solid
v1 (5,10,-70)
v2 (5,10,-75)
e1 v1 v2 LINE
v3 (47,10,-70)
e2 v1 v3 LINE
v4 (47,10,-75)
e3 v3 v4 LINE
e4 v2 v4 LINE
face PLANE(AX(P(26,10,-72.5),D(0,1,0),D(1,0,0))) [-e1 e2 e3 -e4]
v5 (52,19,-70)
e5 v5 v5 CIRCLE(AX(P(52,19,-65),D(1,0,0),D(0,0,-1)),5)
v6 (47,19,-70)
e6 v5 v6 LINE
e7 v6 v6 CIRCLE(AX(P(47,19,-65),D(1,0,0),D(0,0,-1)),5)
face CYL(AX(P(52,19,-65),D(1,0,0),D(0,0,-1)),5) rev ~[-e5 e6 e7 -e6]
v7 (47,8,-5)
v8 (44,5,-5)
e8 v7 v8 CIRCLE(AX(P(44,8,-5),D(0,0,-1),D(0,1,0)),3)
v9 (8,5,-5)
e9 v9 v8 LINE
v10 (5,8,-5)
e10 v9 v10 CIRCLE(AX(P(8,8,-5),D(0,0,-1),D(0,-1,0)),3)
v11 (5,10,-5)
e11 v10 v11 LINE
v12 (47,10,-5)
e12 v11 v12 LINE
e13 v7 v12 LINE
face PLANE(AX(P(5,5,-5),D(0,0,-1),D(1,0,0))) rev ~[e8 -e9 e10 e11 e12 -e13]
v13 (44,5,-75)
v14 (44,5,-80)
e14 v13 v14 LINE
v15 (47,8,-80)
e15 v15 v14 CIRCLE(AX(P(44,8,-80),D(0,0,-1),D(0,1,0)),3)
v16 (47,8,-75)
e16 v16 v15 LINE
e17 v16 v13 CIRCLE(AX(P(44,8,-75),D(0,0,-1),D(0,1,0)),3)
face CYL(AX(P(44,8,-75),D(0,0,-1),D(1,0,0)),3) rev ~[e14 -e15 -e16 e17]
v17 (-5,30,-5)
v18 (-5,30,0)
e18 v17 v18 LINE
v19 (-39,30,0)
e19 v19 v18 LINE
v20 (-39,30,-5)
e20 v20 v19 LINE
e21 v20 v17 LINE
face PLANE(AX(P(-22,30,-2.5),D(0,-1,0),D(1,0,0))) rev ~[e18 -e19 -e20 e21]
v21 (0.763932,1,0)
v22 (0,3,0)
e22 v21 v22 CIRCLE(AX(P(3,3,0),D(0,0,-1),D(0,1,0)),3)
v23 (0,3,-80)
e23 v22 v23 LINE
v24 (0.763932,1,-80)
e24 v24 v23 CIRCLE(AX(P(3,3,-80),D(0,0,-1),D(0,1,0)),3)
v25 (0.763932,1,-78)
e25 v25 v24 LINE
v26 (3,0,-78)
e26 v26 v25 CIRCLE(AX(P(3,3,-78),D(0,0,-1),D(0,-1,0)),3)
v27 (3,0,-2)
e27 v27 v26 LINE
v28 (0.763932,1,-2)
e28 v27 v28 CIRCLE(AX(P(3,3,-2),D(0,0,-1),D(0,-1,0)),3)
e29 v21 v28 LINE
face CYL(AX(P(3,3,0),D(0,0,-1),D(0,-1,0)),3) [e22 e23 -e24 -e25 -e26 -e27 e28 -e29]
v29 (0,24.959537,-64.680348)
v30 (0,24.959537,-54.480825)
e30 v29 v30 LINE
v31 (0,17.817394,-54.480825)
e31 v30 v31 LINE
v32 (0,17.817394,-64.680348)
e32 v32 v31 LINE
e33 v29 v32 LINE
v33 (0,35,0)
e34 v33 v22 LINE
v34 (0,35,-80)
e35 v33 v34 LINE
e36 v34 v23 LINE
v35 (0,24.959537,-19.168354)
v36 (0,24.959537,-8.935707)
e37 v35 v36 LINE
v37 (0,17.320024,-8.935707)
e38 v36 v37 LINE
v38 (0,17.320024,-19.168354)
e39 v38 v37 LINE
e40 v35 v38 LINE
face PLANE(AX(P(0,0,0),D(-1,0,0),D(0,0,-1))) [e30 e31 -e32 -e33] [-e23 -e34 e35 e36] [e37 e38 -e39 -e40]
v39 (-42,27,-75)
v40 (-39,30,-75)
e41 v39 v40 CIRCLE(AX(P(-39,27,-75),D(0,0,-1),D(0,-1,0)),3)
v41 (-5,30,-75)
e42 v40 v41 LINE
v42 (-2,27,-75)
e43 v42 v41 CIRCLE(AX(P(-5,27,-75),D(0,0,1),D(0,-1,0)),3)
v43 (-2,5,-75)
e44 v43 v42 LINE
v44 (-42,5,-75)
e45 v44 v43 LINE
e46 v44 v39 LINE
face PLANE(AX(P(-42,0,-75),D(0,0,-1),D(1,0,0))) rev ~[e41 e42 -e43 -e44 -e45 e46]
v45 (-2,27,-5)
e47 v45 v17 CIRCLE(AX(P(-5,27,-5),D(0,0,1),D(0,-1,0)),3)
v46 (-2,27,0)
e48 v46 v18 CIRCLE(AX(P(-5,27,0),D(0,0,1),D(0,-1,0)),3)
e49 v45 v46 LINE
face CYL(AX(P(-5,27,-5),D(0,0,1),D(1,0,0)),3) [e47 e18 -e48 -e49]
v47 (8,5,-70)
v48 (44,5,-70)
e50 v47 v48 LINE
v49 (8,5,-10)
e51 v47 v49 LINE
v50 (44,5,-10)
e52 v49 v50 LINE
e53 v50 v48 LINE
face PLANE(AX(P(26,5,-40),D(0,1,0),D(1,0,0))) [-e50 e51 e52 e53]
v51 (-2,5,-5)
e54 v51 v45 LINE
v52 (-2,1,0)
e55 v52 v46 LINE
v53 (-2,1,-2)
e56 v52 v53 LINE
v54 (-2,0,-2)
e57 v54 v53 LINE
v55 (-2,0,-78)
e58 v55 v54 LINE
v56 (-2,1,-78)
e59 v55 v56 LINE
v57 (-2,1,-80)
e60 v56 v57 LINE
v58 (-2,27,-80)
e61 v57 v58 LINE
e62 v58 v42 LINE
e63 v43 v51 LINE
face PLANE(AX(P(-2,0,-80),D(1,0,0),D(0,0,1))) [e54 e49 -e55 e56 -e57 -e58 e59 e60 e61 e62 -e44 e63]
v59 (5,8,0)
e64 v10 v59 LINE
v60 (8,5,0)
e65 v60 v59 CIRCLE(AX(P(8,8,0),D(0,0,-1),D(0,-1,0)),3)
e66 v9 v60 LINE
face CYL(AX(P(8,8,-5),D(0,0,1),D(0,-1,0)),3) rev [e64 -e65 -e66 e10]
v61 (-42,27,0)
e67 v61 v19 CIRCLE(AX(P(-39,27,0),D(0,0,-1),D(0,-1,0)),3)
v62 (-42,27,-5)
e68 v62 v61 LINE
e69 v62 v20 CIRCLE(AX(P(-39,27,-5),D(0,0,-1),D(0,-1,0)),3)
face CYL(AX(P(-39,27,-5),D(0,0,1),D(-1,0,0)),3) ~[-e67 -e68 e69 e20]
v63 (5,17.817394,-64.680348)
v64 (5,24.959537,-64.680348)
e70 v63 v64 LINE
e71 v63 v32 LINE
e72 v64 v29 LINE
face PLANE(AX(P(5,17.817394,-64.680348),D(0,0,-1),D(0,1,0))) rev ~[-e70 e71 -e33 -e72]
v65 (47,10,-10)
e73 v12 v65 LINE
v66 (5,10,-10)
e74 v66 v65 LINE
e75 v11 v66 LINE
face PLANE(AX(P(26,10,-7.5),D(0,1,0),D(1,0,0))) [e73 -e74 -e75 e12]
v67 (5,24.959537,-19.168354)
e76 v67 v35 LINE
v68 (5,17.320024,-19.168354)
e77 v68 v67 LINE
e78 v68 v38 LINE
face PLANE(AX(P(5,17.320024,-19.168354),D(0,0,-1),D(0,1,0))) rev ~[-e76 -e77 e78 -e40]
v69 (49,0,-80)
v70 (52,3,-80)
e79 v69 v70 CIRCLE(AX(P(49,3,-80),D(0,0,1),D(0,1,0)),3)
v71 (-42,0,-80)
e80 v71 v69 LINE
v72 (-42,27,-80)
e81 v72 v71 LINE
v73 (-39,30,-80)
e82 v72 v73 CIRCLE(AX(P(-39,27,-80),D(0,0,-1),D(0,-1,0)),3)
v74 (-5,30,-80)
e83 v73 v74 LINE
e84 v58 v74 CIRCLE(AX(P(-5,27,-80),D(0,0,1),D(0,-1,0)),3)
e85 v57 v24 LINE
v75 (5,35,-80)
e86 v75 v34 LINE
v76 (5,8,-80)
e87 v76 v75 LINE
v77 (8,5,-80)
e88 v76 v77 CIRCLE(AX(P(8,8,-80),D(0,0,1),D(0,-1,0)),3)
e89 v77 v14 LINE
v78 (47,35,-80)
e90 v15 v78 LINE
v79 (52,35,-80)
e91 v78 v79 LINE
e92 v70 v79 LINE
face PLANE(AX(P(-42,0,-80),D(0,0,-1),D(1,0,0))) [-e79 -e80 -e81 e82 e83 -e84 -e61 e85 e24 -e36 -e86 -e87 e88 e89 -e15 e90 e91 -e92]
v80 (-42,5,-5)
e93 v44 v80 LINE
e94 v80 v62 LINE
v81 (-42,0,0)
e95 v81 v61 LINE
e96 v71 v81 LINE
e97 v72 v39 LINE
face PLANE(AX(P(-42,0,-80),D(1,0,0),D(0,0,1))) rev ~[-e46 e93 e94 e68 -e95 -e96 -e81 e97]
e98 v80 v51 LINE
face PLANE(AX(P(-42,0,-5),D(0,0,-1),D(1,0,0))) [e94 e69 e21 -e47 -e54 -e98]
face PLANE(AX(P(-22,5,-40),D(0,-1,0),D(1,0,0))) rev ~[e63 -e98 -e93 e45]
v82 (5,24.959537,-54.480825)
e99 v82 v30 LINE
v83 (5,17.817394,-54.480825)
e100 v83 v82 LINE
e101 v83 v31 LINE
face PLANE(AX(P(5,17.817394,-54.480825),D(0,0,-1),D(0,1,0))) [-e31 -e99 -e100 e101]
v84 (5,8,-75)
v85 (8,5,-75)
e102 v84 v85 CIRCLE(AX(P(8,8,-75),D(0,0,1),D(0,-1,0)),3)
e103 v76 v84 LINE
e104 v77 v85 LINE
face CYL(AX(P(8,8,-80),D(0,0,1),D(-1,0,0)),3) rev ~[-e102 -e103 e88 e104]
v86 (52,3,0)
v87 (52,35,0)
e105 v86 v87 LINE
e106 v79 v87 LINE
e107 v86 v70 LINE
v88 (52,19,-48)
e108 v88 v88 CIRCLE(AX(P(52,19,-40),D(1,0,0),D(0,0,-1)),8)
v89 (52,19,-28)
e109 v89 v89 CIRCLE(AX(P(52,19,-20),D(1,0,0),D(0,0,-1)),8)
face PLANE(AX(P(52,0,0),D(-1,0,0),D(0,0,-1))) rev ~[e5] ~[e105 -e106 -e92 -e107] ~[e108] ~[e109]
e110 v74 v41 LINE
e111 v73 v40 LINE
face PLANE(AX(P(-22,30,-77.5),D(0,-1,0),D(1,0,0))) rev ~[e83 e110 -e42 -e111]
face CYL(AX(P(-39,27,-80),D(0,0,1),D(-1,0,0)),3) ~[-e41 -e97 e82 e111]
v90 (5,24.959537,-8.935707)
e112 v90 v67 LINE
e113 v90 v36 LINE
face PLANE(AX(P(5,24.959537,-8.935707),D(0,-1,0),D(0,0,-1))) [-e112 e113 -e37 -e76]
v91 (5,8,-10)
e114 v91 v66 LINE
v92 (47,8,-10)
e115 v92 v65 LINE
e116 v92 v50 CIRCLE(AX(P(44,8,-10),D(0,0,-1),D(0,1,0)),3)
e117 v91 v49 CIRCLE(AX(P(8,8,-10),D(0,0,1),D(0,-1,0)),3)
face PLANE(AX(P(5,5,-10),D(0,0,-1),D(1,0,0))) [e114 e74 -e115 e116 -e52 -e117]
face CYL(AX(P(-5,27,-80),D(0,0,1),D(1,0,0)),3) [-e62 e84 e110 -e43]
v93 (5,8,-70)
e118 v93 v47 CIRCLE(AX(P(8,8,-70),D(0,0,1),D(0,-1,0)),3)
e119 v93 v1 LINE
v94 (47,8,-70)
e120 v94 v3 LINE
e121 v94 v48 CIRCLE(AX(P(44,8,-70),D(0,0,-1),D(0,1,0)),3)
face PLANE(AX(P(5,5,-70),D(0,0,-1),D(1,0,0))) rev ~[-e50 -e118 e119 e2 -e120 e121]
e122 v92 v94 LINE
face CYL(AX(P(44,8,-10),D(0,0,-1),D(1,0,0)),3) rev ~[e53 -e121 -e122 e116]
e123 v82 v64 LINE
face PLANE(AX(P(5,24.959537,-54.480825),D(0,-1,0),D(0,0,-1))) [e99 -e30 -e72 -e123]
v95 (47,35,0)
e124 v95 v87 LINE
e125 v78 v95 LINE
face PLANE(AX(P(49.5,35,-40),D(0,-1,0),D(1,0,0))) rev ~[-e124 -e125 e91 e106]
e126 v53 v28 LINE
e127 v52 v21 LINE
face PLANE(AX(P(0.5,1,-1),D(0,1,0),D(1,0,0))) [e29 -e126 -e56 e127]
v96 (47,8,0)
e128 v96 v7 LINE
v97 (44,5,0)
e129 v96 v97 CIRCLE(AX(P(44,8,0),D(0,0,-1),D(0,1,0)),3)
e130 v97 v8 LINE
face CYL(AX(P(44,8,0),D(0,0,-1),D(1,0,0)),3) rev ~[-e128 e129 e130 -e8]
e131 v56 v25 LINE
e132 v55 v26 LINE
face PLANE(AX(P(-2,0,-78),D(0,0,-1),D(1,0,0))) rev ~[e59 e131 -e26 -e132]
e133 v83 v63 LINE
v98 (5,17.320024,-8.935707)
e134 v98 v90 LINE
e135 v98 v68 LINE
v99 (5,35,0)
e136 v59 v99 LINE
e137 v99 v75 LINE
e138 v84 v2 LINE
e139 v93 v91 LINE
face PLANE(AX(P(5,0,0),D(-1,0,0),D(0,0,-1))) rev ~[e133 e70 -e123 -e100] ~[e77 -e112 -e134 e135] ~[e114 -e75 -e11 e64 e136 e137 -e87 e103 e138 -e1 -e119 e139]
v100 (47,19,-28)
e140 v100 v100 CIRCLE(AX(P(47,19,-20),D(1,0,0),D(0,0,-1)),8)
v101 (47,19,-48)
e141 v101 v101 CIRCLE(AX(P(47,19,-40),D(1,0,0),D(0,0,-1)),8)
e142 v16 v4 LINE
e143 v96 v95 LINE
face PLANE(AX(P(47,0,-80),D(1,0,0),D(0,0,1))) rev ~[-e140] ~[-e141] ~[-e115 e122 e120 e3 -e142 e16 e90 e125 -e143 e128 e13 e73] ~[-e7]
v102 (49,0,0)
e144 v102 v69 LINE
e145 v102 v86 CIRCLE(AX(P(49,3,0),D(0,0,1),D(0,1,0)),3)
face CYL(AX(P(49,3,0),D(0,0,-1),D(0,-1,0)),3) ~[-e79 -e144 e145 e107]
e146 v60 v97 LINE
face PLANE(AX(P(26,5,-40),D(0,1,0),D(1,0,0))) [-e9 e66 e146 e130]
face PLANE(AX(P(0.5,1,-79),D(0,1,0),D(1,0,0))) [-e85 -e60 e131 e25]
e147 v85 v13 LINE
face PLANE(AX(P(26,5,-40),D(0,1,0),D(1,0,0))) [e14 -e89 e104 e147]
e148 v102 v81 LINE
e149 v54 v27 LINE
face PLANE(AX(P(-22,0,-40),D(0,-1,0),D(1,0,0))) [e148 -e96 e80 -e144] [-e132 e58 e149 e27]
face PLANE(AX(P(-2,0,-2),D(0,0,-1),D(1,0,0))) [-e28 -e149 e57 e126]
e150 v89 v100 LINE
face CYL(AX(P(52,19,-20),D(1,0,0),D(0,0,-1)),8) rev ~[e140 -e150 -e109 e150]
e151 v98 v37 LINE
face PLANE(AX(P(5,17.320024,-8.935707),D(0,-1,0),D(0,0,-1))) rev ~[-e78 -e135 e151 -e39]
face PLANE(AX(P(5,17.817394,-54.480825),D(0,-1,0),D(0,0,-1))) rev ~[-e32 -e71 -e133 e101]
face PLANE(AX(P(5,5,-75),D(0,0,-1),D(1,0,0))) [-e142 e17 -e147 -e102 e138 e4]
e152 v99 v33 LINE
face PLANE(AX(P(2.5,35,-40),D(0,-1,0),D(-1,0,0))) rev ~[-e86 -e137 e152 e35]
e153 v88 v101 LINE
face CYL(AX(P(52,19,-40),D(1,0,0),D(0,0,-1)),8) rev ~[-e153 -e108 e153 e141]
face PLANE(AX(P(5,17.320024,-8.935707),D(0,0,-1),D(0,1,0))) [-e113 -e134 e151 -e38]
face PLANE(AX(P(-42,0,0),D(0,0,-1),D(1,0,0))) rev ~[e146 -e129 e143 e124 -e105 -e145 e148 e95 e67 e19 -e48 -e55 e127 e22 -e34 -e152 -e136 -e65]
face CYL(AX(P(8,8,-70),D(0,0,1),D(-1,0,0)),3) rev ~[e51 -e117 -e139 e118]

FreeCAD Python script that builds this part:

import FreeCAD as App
import Part
import Sketcher
from FreeCAD import Vector
Q = App.Units.Quantity


def edges_at(feature, points):
    """Names of the edges that pass closest to the given points."""
    edges = feature.Shape.Edges
    near = lambda p: min(range(len(edges)), key=lambda i: edges[i].distToShape(Part.Vertex(*p))[0])
    return sorted({f"Edge{near(p) + 1}" for p in points})


def add_polygon(sketch, points):
    """Adds a closed chain of lines whose ends are joined by coincident constraints."""
    first, n = sketch.GeometryCount, len(points)
    for a, b in zip(points, points[1:] + points[:1]):
        sketch.addGeometry(Part.LineSegment(App.Vector(*a, 0), App.Vector(*b, 0)), False)
    for i in range(n):
        sketch.addConstraint(Sketcher.Constraint("Coincident", first + i, 2, first + (i + 1) % n, 1))

doc = App.newDocument("Part")
body = doc.addObject("PartDesign::Body", "Body")

sketch1 = body.newObject("Sketcher::SketchObject", "Sketch")
sketch1.AttachmentSupport = (doc.getObject("XZ_Plane"), [""])
sketch1.MapMode = "FlatFace"
add_polygon(sketch1, [(0, -80), (0, 0), (52, 0), (52, -80)])
sketch1.addConstraint(Sketcher.Constraint("Vertical", 0))
sketch1.addConstraint(Sketcher.Constraint("Horizontal", 1))
sketch1.addConstraint(Sketcher.Constraint("Vertical", 2))
sketch1.addConstraint(Sketcher.Constraint("Horizontal", 3))
sketch1.addConstraint(Sketcher.Constraint("Coincident", 0, 2, -1, 1))
sketch1.addConstraint(Sketcher.Constraint("DistanceX", 1, 1, 1, 2, Q("52 mm")))
sketch1.addConstraint(Sketcher.Constraint("DistanceY", 0, 1, 0, 2, Q("80 mm")))
pad1 = body.newObject("PartDesign::Pad", "Pad")
pad1.Profile = sketch1
pad1.Length = 5
pad1.Reversed = True

sketch2 = body.newObject("Sketcher::SketchObject", "Sketch001")
sketch2.AttachmentSupport = (doc.getObject("XZ_Plane"), [""])
sketch2.MapMode = "FlatFace"
add_polygon(sketch2, [(47, 0), (47, -80), (52, -80), (52, 0)])
sketch2.addConstraint(Sketcher.Constraint("Vertical", 0))
sketch2.addConstraint(Sketcher.Constraint("Horizontal", 1))
sketch2.addConstraint(Sketcher.Constraint("Vertical", 2))
sketch2.addConstraint(Sketcher.Constraint("Horizontal", 3))
sketch2.addConstraint(Sketcher.Constraint("PointOnObject", 2, 2, -1))
sketch2.addConstraint(Sketcher.Constraint("DistanceX", 1, 1, 1, 2, Q("5 mm")))
sketch2.addConstraint(Sketcher.Constraint("DistanceY", 0, 2, 0, 1, Q("80 mm")))
sketch2.addConstraint(Sketcher.Constraint("DistanceX", -1, 1, 0, 2, Q("47 mm")))
pad2 = body.newObject("PartDesign::Pad", "Pad001")
pad2.Profile = sketch2
pad2.Length = 35
pad2.Reversed = True

sketch3 = body.newObject("Sketcher::SketchObject", "Sketch002")
sketch3.AttachmentSupport = (doc.getObject("XZ_Plane"), [""])
sketch3.MapMode = "FlatFace"
add_polygon(sketch3, [(5, -80), (5, 0), (0, 0), (0, -80)])
sketch3.addConstraint(Sketcher.Constraint("Vertical", 0))
sketch3.addConstraint(Sketcher.Constraint("Horizontal", 1))
sketch3.addConstraint(Sketcher.Constraint("Vertical", 2))
sketch3.addConstraint(Sketcher.Constraint("Horizontal", 3))
sketch3.addConstraint(Sketcher.Constraint("Coincident", 1, 2, -1, 1))
sketch3.addConstraint(Sketcher.Constraint("DistanceX", 1, 2, 1, 1, Q("5 mm")))
sketch3.addConstraint(Sketcher.Constraint("DistanceY", 0, 1, 0, 2, Q("80 mm")))
pad3 = body.newObject("PartDesign::Pad", "Pad002")
pad3.Profile = sketch3
pad3.Length = 35
pad3.Reversed = True

sketch4 = body.newObject("Sketcher::SketchObject", "Sketch003")
sketch4.AttachmentSupport = (doc.getObject("XZ_Plane"), [""])
sketch4.MapMode = "FlatFace"
sketch4.AttachmentOffset = App.Placement(Vector(0, 0, -5), App.Rotation())
add_polygon(sketch4, [(5, -75), (5, -70), (47, -70), (47, -75)])
add_polygon(sketch4, [(5, -10), (5, -5), (47, -5), (47, -10)])
sketch4.addConstraint(Sketcher.Constraint("Vertical", 0))
sketch4.addConstraint(Sketcher.Constraint("Horizontal", 1))
sketch4.addConstraint(Sketcher.Constraint("Vertical", 2))
sketch4.addConstraint(Sketcher.Constraint("Horizontal", 3))
sketch4.addConstraint(Sketcher.Constraint("Vertical", 4))
sketch4.addConstraint(Sketcher.Constraint("Horizontal", 5))
sketch4.addConstraint(Sketcher.Constraint("Vertical", 6))
sketch4.addConstraint(Sketcher.Constraint("Horizontal", 7))
sketch4.addConstraint(Sketcher.Constraint("Vertical", 3, 2, 4, 2))
sketch4.addConstraint(Sketcher.Constraint("Vertical", 2, 2, 5, 2))
sketch4.addConstraint(Sketcher.Constraint("Equal", 2, 4))
sketch4.addConstraint(Sketcher.Constraint("DistanceX", 1, 1, 1, 2, Q("42 mm")))
sketch4.addConstraint(Sketcher.Constraint("DistanceY", 0, 1, 0, 2, Q("5 mm")))
sketch4.addConstraint(Sketcher.Constraint("DistanceX", -1, 1, 0, 2, Q("5 mm")))
sketch4.addConstraint(Sketcher.Constraint("DistanceY", 0, 2, -1, 1, Q("70 mm")))
sketch4.addConstraint(Sketcher.Constraint("DistanceY", 4, 2, -1, 1, Q("5 mm")))
pad4 = body.newObject("PartDesign::Pad", "Pad003")
pad4.Profile = sketch4
pad4.Length = 5
pad4.Reversed = True
doc.recompute()

fillet = body.newObject("PartDesign::Fillet", "Fillet")
fillet.Base = (pad4, edges_at(pad4, [(52, 0, -40)]))
fillet.Radius = 3
doc.recompute()

fillet2 = body.newObject("PartDesign::Fillet", "Fillet001")
fillet2.Base = (fillet, edges_at(fillet, [(47, 5, -2.5)]))
fillet2.Radius = 3
doc.recompute()

fillet3 = body.newObject("PartDesign::Fillet", "Fillet002")
fillet3.Base = (fillet2, edges_at(fillet2, [
    (5, 5, -77.5),
    (5, 5, -40),
    (47, 5, -77.5),
    (0, 0, -40),
    (5, 5, -2.5),
    (47, 5, -40),
]))
fillet3.Radius = 3

sketch5 = body.newObject("Sketcher::SketchObject", "Sketch004")
sketch5.AttachmentSupport = (doc.getObject("YZ_Plane"), [""])
sketch5.MapMode = "FlatFace"
sketch5.AttachmentOffset = App.Placement(Vector(0, 0, 52), App.Rotation())
sketch5.addGeometry(Part.Circle(Vector(19, -20, 0), Vector(0, 0, 1), 8), False)
sketch5.addGeometry(Part.Circle(Vector(19, -40, 0), Vector(0, 0, 1), 8), False)
sketch5.addGeometry(Part.Circle(Vector(19, -65, 0), Vector(0, 0, 1), 5), False)
sketch5.addConstraint(Sketcher.Constraint("Equal", 0, 1))
sketch5.addConstraint(Sketcher.Constraint("Vertical", 0, 3, 1, 3))
sketch5.addConstraint(Sketcher.Constraint("Vertical", 1, 3, 2, 3))
sketch5.addConstraint(Sketcher.Constraint("Diameter", 0, Q("16 mm")))
sketch5.addConstraint(Sketcher.Constraint("Diameter", 2, Q("10 mm")))
sketch5.addConstraint(Sketcher.Constraint("DistanceX", -1, 1, 0, 3, Q("19 mm")))
sketch5.addConstraint(Sketcher.Constraint("DistanceY", 0, 3, -1, 1, Q("20 mm")))
sketch5.addConstraint(Sketcher.Constraint("DistanceY", 1, 3, -1, 1, Q("40 mm")))
sketch5.addConstraint(Sketcher.Constraint("DistanceY", 2, 3, -1, 1, Q("65 mm")))
pocket1 = body.newObject("PartDesign::Pocket", "Pocket")
pocket1.Profile = sketch5
pocket1.Length = 5

sketch6 = body.newObject("Sketcher::SketchObject", "Sketch005")
sketch6.AttachmentSupport = (doc.getObject("XZ_Plane"), [""])
sketch6.MapMode = "FlatFace"
add_polygon(sketch6, [(-2, -2), (-2, 0), (3, 0), (3, -2)])
add_polygon(sketch6, [(-2, -80), (-2, -78), (3, -78), (3, -80)])
sketch6.addConstraint(Sketcher.Constraint("Vertical", 0))
sketch6.addConstraint(Sketcher.Constraint("Horizontal", 1))
sketch6.addConstraint(Sketcher.Constraint("Vertical", 2))
sketch6.addConstraint(Sketcher.Constraint("Horizontal", 3))
sketch6.addConstraint(Sketcher.Constraint("Vertical", 4))
sketch6.addConstraint(Sketcher.Constraint("Horizontal", 5))
sketch6.addConstraint(Sketcher.Constraint("Vertical", 6))
sketch6.addConstraint(Sketcher.Constraint("Horizontal", 7))
sketch6.addConstraint(Sketcher.Constraint("PointOnObject", 0, 2, -1))
sketch6.addConstraint(Sketcher.Constraint("Vertical", 3, 2, 4, 2))
sketch6.addConstraint(Sketcher.Constraint("Vertical", 2, 2, 5, 2))
sketch6.addConstraint(Sketcher.Constraint("Equal", 2, 4))
sketch6.addConstraint(Sketcher.Constraint("DistanceX", 1, 1, 1, 2, Q("5 mm")))
sketch6.addConstraint(Sketcher.Constraint("DistanceY", 0, 1, 0, 2, Q("2 mm")))
sketch6.addConstraint(Sketcher.Constraint("DistanceX", 0, 2, -1, 1, Q("2 mm")))
sketch6.addConstraint(Sketcher.Constraint("DistanceY", 4, 2, -1, 1, Q("78 mm")))
pad5 = body.newObject("PartDesign::Pad", "Pad004")
pad5.Profile = sketch6
pad5.Length = 1
pad5.Reversed = True

sketch7 = body.newObject("Sketcher::SketchObject", "Sketch006")
sketch7.AttachmentSupport = (doc.getObject("XZ_Plane"), [""])
sketch7.MapMode = "FlatFace"
add_polygon(sketch7, [(-42, 0), (-42, -80), (-2, -80), (-2, 0)])
sketch7.addConstraint(Sketcher.Constraint("Vertical", 0))
sketch7.addConstraint(Sketcher.Constraint("Horizontal", 1))
sketch7.addConstraint(Sketcher.Constraint("Vertical", 2))
sketch7.addConstraint(Sketcher.Constraint("Horizontal", 3))
sketch7.addConstraint(Sketcher.Constraint("PointOnObject", 2, 2, -1))
sketch7.addConstraint(Sketcher.Constraint("DistanceX", 1, 1, 1, 2, Q("40 mm")))
sketch7.addConstraint(Sketcher.Constraint("DistanceY", 0, 2, 0, 1, Q("80 mm")))
sketch7.addConstraint(Sketcher.Constraint("DistanceX", 0, 2, -1, 1, Q("42 mm")))
pad6 = body.newObject("PartDesign::Pad", "Pad005")
pad6.Profile = sketch7
pad6.Length = 5
pad6.Reversed = True

sketch8 = body.newObject("Sketcher::SketchObject", "Sketch007")
sketch8.AttachmentSupport = (doc.getObject("XZ_Plane"), [""])
sketch8.MapMode = "FlatFace"
add_polygon(sketch8, [(-42, 0), (-42, -5), (-2, -5), (-2, 0)])
add_polygon(sketch8, [(-42, -75), (-42, -80), (-2, -80), (-2, -75)])
sketch8.addConstraint(Sketcher.Constraint("Vertical", 0))
sketch8.addConstraint(Sketcher.Constraint("Horizontal", 1))
sketch8.addConstraint(Sketcher.Constraint("Vertical", 2))
sketch8.addConstraint(Sketcher.Constraint("Horizontal", 3))
sketch8.addConstraint(Sketcher.Constraint("Vertical", 4))
sketch8.addConstraint(Sketcher.Constraint("Horizontal", 5))
sketch8.addConstraint(Sketcher.Constraint("Vertical", 6))
sketch8.addConstraint(Sketcher.Constraint("Horizontal", 7))
sketch8.addConstraint(Sketcher.Constraint("PointOnObject", 2, 2, -1))
sketch8.addConstraint(Sketcher.Constraint("Vertical", 3, 2, 4, 2))
sketch8.addConstraint(Sketcher.Constraint("Vertical", 2, 2, 5, 2))
sketch8.addConstraint(Sketcher.Constraint("Equal", 2, 4))
sketch8.addConstraint(Sketcher.Constraint("DistanceX", 1, 1, 1, 2, Q("40 mm")))
sketch8.addConstraint(Sketcher.Constraint("DistanceY", 0, 2, 0, 1, Q("5 mm")))
sketch8.addConstraint(Sketcher.Constraint("DistanceX", 0, 2, -1, 1, Q("42 mm")))
sketch8.addConstraint(Sketcher.Constraint("DistanceY", 4, 2, -1, 1, Q("80 mm")))
pad7 = body.newObject("PartDesign::Pad", "Pad006")
pad7.Profile = sketch8
pad7.Length = 30
pad7.Reversed = True
doc.recompute()

fillet4 = body.newObject("PartDesign::Fillet", "Fillet003")
fillet4.Base = (pad7, edges_at(pad7, [
    (-42, 30, -2.5),
    (-2, 30, -2.5),
    (-42, 30, -77.5),
    (-2, 30, -77.5),
]))
fillet4.Radius = 3

sketch9 = body.newObject("Sketcher::SketchObject", "Sketch008")
sketch9.AttachmentSupport = (doc.getObject("YZ_Plane"), [""])
sketch9.MapMode = "FlatFace"
sketch9.AttachmentOffset = App.Placement(Vector(0, 0, 5), App.Rotation())
add_polygon(sketch9, [(25, -9), (17, -9), (17, -19), (25, -19)])
add_polygon(sketch9, [(25, -54), (18, -54), (18, -65), (25, -65)])
sketch9.addConstraint(Sketcher.Constraint("Horizontal", 0))
sketch9.addConstraint(Sketcher.Constraint("Vertical", 1))
sketch9.addConstraint(Sketcher.Constraint("Horizontal", 2))
sketch9.addConstraint(Sketcher.Constraint("Vertical", 3))
sketch9.addConstraint(Sketcher.Constraint("Horizontal", 4))
sketch9.addConstraint(Sketcher.Constraint("Vertical", 5))
sketch9.addConstraint(Sketcher.Constraint("Horizontal", 6))
sketch9.addConstraint(Sketcher.Constraint("Vertical", 7))
sketch9.addConstraint(Sketcher.Constraint("Vertical", 3, 2, 6, 2))
sketch9.addConstraint(Sketcher.Constraint("DistanceX", 0, 2, 0, 1, Q("7.639513 mm")))
sketch9.addConstraint(Sketcher.Constraint("DistanceX", 4, 2, 4, 1, Q("7.142143 mm")))
sketch9.addConstraint(Sketcher.Constraint("DistanceY", 1, 2, 1, 1, Q("10.232647 mm")))
sketch9.addConstraint(Sketcher.Constraint("DistanceY", 5, 2, 5, 1, Q("10.199523 mm")))
sketch9.addConstraint(Sketcher.Constraint("DistanceY", 5, 2, -1, 1, Q("64.680348 mm")))
sketch9.addConstraint(Sketcher.Constraint("DistanceY", 4, 2, 1, 2, Q("35.312471 mm")))
sketch9.addConstraint(Sketcher.Constraint("DistanceX", -1, 1, 0, 2, Q("17.320024 mm")))
pocket2 = body.newObject("PartDesign::Pocket", "Pocket001")
pocket2.Profile = sketch9
pocket2.Length = 30

doc.recompute()
